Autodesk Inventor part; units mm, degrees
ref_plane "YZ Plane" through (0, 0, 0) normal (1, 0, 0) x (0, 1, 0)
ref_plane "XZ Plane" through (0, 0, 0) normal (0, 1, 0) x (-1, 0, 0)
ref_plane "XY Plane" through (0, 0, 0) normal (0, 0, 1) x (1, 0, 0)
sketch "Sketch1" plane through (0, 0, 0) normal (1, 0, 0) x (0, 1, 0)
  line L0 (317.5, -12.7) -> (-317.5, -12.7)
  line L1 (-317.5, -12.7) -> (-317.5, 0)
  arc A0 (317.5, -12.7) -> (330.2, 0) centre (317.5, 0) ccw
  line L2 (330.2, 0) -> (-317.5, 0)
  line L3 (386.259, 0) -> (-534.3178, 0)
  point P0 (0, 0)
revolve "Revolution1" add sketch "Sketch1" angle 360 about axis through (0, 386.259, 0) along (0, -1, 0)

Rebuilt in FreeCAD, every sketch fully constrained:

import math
import FreeCAD as App
import Part
import Sketcher
from FreeCAD import Vector
Q = App.Units.Quantity

doc = App.newDocument("Part")
body = doc.addObject("PartDesign::Body", "Body")

# Sketch on YZ plane
sketch1 = body.newObject("Sketcher::SketchObject", "Sketch")
sketch1.AttachmentSupport = (doc.getObject("YZ_Plane"), [""])
sketch1.MapMode = "FlatFace"
sketch1.addGeometry(Part.LineSegment(Vector(-318, -13, 0), Vector(318, -13, 0)), False)
sketch1.addGeometry(Part.ArcOfCircle(Part.Circle(Vector(318, 0, 0), Vector(0, 0, 1), 13), math.radians(-90), math.radians(0)), False)
sketch1.addGeometry(Part.LineSegment(Vector(330, 0, 0), Vector(-318, 0, 0)), False)
sketch1.addGeometry(Part.LineSegment(Vector(-318, 0, 0), Vector(-318, -13, 0)), False)
sketch1.addConstraint(Sketcher.Constraint("Tangent", 0, 2, 1, 1))
sketch1.addConstraint(Sketcher.Constraint("Coincident", 1, 2, 2, 1))
sketch1.addConstraint(Sketcher.Constraint("Coincident", 2, 2, 3, 1))
sketch1.addConstraint(Sketcher.Constraint("Coincident", 3, 2, 0, 1))
sketch1.addConstraint(Sketcher.Constraint("Horizontal", 0))
sketch1.addConstraint(Sketcher.Constraint("Horizontal", 2))
sketch1.addConstraint(Sketcher.Constraint("Vertical", 3))
sketch1.addConstraint(Sketcher.Constraint("PointOnObject", 1, 3, -1))
sketch1.addConstraint(Sketcher.Constraint("PointOnObject", 1, 2, -1))
sketch1.addConstraint(Sketcher.Constraint("Radius", 1, Q("0.5 in")))
sketch1.addConstraint(Sketcher.Constraint("DistanceX", 0, 1, 0, 2, Q("25 in")))
sketch1.addConstraint(Sketcher.Constraint("DistanceX", -1, 1, 1, 2, Q("13 in")))
revolution = body.newObject("PartDesign::Revolution", "Revolution")
revolution.Profile = sketch1
revolution.ReferenceAxis = (sketch1, ["H_Axis"])
revolution.Angle = 360

doc.recompute()
